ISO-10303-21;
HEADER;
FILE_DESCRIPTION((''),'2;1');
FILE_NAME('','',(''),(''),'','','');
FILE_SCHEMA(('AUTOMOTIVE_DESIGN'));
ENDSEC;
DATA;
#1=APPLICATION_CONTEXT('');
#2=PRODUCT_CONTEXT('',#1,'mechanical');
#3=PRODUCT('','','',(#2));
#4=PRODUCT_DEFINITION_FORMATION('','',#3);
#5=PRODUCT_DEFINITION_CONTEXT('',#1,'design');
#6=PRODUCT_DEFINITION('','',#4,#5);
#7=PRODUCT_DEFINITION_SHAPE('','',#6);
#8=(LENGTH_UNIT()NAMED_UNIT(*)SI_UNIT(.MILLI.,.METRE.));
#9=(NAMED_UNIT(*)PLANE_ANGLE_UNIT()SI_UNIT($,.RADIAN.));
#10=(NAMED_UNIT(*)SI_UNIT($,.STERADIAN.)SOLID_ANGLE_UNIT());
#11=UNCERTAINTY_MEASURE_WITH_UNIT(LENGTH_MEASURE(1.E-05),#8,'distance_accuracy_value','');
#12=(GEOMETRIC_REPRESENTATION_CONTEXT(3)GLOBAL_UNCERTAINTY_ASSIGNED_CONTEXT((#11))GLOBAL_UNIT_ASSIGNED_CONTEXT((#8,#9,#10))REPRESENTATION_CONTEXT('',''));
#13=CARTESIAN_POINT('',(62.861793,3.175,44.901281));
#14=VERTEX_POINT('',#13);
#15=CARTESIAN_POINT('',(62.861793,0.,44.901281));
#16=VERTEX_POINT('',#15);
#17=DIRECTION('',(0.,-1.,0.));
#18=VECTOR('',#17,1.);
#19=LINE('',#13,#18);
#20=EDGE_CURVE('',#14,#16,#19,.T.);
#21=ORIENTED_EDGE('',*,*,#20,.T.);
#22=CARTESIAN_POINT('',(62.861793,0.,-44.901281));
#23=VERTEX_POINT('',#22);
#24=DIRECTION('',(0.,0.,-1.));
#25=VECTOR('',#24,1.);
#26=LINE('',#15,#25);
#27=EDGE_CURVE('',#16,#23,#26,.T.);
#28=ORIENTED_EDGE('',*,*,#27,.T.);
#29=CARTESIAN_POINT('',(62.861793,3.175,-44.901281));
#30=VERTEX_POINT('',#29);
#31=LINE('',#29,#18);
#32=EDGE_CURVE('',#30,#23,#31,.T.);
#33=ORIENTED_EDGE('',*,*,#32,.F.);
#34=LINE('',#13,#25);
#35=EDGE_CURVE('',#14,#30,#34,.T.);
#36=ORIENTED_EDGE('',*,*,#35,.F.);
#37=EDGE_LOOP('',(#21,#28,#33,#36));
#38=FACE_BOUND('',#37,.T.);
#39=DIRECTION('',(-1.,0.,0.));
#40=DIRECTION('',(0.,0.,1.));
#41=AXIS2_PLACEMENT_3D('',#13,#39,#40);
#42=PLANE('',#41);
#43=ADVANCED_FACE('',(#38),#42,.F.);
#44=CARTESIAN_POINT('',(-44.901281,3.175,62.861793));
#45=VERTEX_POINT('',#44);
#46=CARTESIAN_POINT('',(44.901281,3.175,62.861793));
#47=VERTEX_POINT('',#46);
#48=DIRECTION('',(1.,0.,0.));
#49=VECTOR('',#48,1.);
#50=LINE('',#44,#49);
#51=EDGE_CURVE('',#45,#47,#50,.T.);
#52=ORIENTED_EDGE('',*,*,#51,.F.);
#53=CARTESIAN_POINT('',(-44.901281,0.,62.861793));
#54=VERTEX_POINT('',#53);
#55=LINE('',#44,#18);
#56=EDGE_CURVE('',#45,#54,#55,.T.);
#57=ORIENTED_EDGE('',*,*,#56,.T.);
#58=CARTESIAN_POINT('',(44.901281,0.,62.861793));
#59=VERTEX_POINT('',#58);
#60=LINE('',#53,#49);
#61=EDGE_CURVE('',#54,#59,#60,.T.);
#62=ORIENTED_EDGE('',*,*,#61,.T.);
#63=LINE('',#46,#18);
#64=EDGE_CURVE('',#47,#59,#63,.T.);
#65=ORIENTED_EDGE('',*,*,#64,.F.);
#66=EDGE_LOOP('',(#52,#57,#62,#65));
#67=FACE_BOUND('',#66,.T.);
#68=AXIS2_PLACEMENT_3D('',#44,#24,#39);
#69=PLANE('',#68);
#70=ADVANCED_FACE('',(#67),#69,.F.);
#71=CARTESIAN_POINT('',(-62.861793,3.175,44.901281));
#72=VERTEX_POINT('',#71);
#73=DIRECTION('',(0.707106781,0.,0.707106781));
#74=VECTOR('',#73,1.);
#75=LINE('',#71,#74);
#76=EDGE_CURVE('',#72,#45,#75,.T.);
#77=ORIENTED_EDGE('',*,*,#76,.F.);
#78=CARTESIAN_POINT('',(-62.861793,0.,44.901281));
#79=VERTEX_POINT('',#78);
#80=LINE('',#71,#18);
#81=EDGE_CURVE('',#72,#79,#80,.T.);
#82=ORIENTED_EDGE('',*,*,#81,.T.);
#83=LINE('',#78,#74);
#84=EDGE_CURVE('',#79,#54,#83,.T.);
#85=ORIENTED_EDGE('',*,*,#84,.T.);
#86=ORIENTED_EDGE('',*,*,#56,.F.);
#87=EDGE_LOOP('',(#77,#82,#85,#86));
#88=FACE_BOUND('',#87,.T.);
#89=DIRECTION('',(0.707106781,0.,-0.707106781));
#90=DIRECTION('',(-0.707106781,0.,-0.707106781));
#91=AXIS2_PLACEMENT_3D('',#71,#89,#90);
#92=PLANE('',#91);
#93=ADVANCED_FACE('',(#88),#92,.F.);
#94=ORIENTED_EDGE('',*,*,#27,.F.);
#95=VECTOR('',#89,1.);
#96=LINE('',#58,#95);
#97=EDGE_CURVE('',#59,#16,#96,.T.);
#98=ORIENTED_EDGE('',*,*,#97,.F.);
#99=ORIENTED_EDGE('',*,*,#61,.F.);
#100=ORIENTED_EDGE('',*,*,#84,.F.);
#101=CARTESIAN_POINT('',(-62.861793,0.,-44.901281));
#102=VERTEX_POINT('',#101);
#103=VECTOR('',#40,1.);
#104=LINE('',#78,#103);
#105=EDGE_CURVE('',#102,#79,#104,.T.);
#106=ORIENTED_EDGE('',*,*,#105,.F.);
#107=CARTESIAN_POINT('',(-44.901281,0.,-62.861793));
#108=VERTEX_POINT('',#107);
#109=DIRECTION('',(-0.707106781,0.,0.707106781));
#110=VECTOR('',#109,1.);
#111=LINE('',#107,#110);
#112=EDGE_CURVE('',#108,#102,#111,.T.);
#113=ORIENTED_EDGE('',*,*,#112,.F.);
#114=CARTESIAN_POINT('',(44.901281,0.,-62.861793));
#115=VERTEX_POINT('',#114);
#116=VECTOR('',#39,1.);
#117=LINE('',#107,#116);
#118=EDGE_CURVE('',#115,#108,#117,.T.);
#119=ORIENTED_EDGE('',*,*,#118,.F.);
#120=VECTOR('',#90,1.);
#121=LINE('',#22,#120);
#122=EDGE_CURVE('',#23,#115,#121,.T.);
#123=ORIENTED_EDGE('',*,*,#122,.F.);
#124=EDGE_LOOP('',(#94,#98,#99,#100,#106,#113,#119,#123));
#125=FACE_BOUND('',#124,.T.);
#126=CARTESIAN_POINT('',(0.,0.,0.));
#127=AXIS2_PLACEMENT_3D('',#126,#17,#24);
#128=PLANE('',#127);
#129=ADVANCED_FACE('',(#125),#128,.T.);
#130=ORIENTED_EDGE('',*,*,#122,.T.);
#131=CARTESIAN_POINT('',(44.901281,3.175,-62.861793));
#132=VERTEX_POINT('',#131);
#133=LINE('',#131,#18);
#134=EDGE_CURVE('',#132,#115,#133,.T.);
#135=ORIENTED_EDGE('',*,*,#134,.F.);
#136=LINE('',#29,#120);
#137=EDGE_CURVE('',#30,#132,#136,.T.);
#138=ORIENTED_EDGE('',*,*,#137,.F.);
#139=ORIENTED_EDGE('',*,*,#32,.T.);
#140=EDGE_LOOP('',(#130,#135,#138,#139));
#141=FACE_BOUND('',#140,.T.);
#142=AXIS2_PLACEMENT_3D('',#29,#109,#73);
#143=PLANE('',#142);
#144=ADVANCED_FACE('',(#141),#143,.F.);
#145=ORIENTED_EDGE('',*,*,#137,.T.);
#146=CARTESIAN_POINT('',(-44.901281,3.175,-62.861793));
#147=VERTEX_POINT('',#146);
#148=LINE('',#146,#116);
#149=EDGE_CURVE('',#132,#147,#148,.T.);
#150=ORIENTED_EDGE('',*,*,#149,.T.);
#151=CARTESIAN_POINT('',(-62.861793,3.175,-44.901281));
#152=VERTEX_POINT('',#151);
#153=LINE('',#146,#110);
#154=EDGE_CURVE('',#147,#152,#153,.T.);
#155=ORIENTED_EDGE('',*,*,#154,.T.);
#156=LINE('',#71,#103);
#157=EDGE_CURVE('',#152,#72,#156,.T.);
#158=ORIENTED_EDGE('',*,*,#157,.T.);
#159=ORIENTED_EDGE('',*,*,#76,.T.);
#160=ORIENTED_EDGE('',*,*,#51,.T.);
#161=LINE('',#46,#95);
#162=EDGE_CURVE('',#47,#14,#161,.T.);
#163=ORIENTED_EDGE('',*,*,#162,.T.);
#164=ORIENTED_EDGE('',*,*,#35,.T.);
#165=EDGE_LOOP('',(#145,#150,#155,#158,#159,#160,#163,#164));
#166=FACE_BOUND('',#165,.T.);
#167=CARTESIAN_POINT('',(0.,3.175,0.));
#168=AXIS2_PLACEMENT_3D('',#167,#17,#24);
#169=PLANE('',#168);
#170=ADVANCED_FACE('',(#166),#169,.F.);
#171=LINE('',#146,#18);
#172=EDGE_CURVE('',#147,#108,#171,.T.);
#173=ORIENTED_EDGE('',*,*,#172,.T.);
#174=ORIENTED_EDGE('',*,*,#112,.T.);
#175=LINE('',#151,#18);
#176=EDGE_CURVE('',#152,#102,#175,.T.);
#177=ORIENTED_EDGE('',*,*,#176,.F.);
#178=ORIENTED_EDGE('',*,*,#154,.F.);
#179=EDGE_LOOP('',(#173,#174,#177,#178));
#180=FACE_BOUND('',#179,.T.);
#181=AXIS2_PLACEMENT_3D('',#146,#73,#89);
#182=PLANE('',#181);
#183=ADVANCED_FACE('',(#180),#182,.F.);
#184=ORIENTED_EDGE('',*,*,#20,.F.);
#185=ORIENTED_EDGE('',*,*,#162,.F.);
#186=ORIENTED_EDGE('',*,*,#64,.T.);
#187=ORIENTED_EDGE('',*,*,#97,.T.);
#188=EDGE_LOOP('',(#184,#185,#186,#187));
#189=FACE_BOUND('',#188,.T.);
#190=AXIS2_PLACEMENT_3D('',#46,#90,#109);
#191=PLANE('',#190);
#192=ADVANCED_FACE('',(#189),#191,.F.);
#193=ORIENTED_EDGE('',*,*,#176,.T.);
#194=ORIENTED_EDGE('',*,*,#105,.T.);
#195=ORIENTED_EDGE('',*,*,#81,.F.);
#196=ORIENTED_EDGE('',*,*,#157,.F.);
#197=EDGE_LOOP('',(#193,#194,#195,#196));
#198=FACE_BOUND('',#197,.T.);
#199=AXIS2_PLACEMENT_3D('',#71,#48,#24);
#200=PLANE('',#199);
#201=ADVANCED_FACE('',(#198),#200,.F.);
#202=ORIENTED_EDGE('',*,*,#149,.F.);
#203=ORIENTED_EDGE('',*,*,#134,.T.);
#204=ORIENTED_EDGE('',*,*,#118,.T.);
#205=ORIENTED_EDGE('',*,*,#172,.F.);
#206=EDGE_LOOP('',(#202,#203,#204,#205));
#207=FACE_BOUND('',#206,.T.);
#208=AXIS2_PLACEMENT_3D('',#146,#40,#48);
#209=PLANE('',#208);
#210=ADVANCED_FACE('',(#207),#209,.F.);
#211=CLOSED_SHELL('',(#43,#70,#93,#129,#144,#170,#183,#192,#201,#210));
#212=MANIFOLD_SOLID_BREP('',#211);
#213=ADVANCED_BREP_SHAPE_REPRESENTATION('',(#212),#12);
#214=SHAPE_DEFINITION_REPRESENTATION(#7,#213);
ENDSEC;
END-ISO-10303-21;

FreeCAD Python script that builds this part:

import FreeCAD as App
import Part
import Sketcher
from FreeCAD import Vector
Q = App.Units.Quantity


def add_polygon(sketch, points):
    """Adds a closed chain of lines whose ends are joined by coincident constraints."""
    first, n = sketch.GeometryCount, len(points)
    for a, b in zip(points, points[1:] + points[:1]):
        sketch.addGeometry(Part.LineSegment(App.Vector(*a, 0), App.Vector(*b, 0)), False)
    for i in range(n):
        sketch.addConstraint(Sketcher.Constraint("Coincident", first + i, 2, first + (i + 1) % n, 1))

doc = App.newDocument("Part")
body = doc.addObject("PartDesign::Body", "Body")

sketch1 = body.newObject("Sketcher::SketchObject", "Sketch")
sketch1.AttachmentSupport = (doc.getObject("XZ_Plane"), [""])
sketch1.MapMode = "FlatFace"
add_polygon(sketch1, [(-62.861793, 44.901281), (-44.901281, 62.861793), (44.901281, 62.861793), (62.861793, 44.901281), (62.861793, -44.901281), (44.901281, -62.861793), (-44.901281, -62.861793), (-62.861793, -44.901281)])
sketch1.addConstraint([
    Sketcher.Constraint("Horizontal", 1),
    Sketcher.Constraint("Vertical", 3),
    Sketcher.Constraint("Horizontal", 5),
    Sketcher.Constraint("Vertical", 7),
    Sketcher.Constraint("Symmetric", 0, 2, 4, 2, -1, 1),
    Sketcher.Constraint("Symmetric", 2, 2, 6, 2, -1, 1),
    Sketcher.Constraint("Perpendicular", 0, 2),
    Sketcher.Constraint("Perpendicular", 2, 4),
    Sketcher.Constraint("Perpendicular", 4, 6),
    Sketcher.Constraint("Horizontal", 3, 2, 6, 2),
    Sketcher.Constraint("Vertical", 1, 2, 4, 2),
    Sketcher.Constraint("Equal", 5, 3),
    Sketcher.Constraint("Distance", 0, Q("1 in")),
    Sketcher.Constraint("DistanceX", 1, 1, 1, 2, Q("89.802561 mm")),
])
pad1 = body.newObject("PartDesign::Pad", "Pad")
pad1.Profile = sketch1
pad1.Length = Q("0.125 in")
pad1.Reversed = True

doc.recompute()
